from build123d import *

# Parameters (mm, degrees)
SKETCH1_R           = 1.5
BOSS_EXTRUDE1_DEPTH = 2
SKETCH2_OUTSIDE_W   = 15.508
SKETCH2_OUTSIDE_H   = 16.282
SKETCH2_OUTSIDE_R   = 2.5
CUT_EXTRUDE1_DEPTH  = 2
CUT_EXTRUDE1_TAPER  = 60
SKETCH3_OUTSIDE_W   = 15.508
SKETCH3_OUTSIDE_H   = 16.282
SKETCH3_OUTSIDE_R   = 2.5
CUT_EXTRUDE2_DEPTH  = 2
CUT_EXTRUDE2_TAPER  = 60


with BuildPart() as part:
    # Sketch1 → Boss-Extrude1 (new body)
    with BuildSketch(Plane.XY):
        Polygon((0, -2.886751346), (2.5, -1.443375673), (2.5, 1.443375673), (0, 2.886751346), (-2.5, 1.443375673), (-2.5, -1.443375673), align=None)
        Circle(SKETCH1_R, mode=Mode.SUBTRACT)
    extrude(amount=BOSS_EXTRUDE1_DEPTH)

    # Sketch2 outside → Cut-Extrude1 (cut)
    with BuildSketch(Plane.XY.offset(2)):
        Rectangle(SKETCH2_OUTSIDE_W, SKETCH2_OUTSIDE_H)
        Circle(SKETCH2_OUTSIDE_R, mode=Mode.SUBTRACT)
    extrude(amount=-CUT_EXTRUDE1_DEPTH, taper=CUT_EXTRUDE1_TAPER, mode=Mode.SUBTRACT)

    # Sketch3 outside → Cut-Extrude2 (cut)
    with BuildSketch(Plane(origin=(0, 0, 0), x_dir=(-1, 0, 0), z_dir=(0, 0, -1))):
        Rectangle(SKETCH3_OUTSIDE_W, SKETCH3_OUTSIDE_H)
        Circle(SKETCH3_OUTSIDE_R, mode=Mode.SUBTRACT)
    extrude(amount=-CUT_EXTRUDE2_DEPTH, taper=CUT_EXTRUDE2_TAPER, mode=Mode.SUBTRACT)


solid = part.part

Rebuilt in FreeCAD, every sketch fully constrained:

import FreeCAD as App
import Part
import Sketcher

V = App.Vector
Q = App.Units.Quantity

doc = App.newDocument("Part")
params = doc.addObject("Spreadsheet::Sheet", "Params")
for row, (alias, value) in enumerate([
    ("sketch1_diameter", "3 mm"),
    ("pad1_length", "2 mm"),
    ("sketch2_diameter", "5 mm"),
    ("pocket1_length", "2 mm"),
    ("pocket1_taper", "60 deg"),
    ("sketch3_diameter", "5 mm"),
    ("pocket2_length", "2 mm"),
    ("pocket2_taper", "60 deg"),
], start=1):
    params.set(f"A{row}", alias)
    params.set(f"B{row}", "=" + value)
    params.setAlias(f"B{row}", alias)

body = doc.addObject("PartDesign::Body", "Body")

# Sketch on XY plane
sketch1 = body.newObject("Sketcher::SketchObject", "Sketch")
sketch1.AttachmentSupport = (doc.getObject("XY_Plane"), [""])
sketch1.MapMode = "FlatFace"
sketch1.addGeometry(Part.LineSegment(V(0, -2.886751, 0), V(2.5, -1.443376, 0)), False)
sketch1.addGeometry(Part.LineSegment(V(2.5, -1.443376, 0), V(2.5, 1.443376, 0)), False)
sketch1.addGeometry(Part.LineSegment(V(2.5, 1.443376, 0), V(0, 2.886751, 0)), False)
sketch1.addGeometry(Part.LineSegment(V(0, 2.886751, 0), V(-2.5, 1.443376, 0)), False)
sketch1.addGeometry(Part.LineSegment(V(-2.5, 1.443376, 0), V(-2.5, -1.443376, 0)), False)
sketch1.addGeometry(Part.LineSegment(V(-2.5, -1.443376, 0), V(0, -2.886751, 0)), False)
sketch1.addGeometry(Part.Circle(V(0, 0, 0), V(0, 0, 1), 1.5), False)
sketch1.addConstraint(Sketcher.Constraint("Coincident", 0, 2, 1, 1))
sketch1.addConstraint(Sketcher.Constraint("Coincident", 1, 2, 2, 1))
sketch1.addConstraint(Sketcher.Constraint("Coincident", 2, 2, 3, 1))
sketch1.addConstraint(Sketcher.Constraint("Coincident", 3, 2, 4, 1))
sketch1.addConstraint(Sketcher.Constraint("Coincident", 4, 2, 5, 1))
sketch1.addConstraint(Sketcher.Constraint("Coincident", 5, 2, 0, 1))
sketch1.addConstraint(Sketcher.Constraint("Vertical", 1))
sketch1.addConstraint(Sketcher.Constraint("Vertical", 4))
sketch1.addConstraint(Sketcher.Constraint("Coincident", 6, 3, -1, 1))
sketch1.addConstraint(Sketcher.Constraint("Symmetric", 0, 2, 3, 2, -1, 1))
sketch1.addConstraint(Sketcher.Constraint("Symmetric", 2, 2, 5, 2, -1, 1))
sketch1.addConstraint(Sketcher.Constraint("PointOnObject", 2, 2, -2))
sketch1.addConstraint(Sketcher.Constraint("Parallel", 2, 5))
sketch1.addConstraint(Sketcher.Constraint("Horizontal", 1, 2, 3, 2))
sketch1.addConstraint(Sketcher.Constraint("Diameter", 6, 3.0))
sketch1.addConstraint(Sketcher.Constraint("Angle", 0, Q("30 deg")))
sketch1.addConstraint(Sketcher.Constraint("DistanceX", 3, 2, 1, 2, 5.0))
sketch1.addConstraint(Sketcher.Constraint("DistanceY", 1, 1, 1, 2, 2.886751))
sketch1.setExpression("Constraints[14]", "Params.sketch1_diameter")
pad1 = body.newObject("PartDesign::Pad", "Pad")
pad1.Profile = sketch1
pad1.setExpression("Length", "Params.pad1_length")

# Sketch on XY plane
sketch2 = body.newObject("Sketcher::SketchObject", "Sketch001")
sketch2.AttachmentSupport = (doc.getObject("XY_Plane"), [""])
sketch2.MapMode = "FlatFace"
sketch2.AttachmentOffset = App.Placement(V(0, 0, 2), App.Rotation())
sketch2.addGeometry(Part.LineSegment(V(-7.754, 8.141, 0), V(-7.754, -8.141, 0)), False)
sketch2.addGeometry(Part.LineSegment(V(-7.754, -8.141, 0), V(7.754, -8.141, 0)), False)
sketch2.addGeometry(Part.LineSegment(V(7.754, -8.141, 0), V(7.754, 8.141, 0)), False)
sketch2.addGeometry(Part.LineSegment(V(7.754, 8.141, 0), V(-7.754, 8.141, 0)), False)
sketch2.addGeometry(Part.Circle(V(0, 0, 0), V(0, 0, 1), 2.5), False)
sketch2.addConstraint(Sketcher.Constraint("Coincident", 0, 2, 1, 1))
sketch2.addConstraint(Sketcher.Constraint("Coincident", 1, 2, 2, 1))
sketch2.addConstraint(Sketcher.Constraint("Coincident", 2, 2, 3, 1))
sketch2.addConstraint(Sketcher.Constraint("Coincident", 3, 2, 0, 1))
sketch2.addConstraint(Sketcher.Constraint("Vertical", 0))
sketch2.addConstraint(Sketcher.Constraint("Horizontal", 1))
sketch2.addConstraint(Sketcher.Constraint("Vertical", 2))
sketch2.addConstraint(Sketcher.Constraint("Horizontal", 3))
sketch2.addConstraint(Sketcher.Constraint("Coincident", 4, 3, -1, 1))
sketch2.addConstraint(Sketcher.Constraint("Symmetric", 0, 2, 2, 2, -1, 1))
sketch2.addConstraint(Sketcher.Constraint("Diameter", 4, 5.0))
sketch2.addConstraint(Sketcher.Constraint("DistanceX", 1, 1, 1, 2, 15.508))
sketch2.addConstraint(Sketcher.Constraint("DistanceY", 0, 2, 0, 1, 16.282))
sketch2.setExpression("Constraints[10]", "Params.sketch2_diameter")
pocket1 = body.newObject("PartDesign::Pocket", "Pocket")
pocket1.Profile = sketch2
pocket1.setExpression("Length", "Params.pocket1_length")
pocket1.setExpression("TaperAngle", "Params.pocket1_taper")

# Sketch on XY plane
sketch3 = body.newObject("Sketcher::SketchObject", "Sketch002")
sketch3.AttachmentSupport = (doc.getObject("XY_Plane"), [""])
sketch3.MapMode = "FlatFace"
sketch3.addGeometry(Part.LineSegment(V(7.754, 8.141, 0), V(7.754, -8.141, 0)), False)
sketch3.addGeometry(Part.LineSegment(V(7.754, -8.141, 0), V(-7.754, -8.141, 0)), False)
sketch3.addGeometry(Part.LineSegment(V(-7.754, -8.141, 0), V(-7.754, 8.141, 0)), False)
sketch3.addGeometry(Part.LineSegment(V(-7.754, 8.141, 0), V(7.754, 8.141, 0)), False)
sketch3.addGeometry(Part.Circle(V(0, 0, 0), V(0, 0, 1), 2.5), False)
sketch3.addConstraint(Sketcher.Constraint("Coincident", 0, 2, 1, 1))
sketch3.addConstraint(Sketcher.Constraint("Coincident", 1, 2, 2, 1))
sketch3.addConstraint(Sketcher.Constraint("Coincident", 2, 2, 3, 1))
sketch3.addConstraint(Sketcher.Constraint("Coincident", 3, 2, 0, 1))
sketch3.addConstraint(Sketcher.Constraint("Vertical", 0))
sketch3.addConstraint(Sketcher.Constraint("Horizontal", 1))
sketch3.addConstraint(Sketcher.Constraint("Vertical", 2))
sketch3.addConstraint(Sketcher.Constraint("Horizontal", 3))
sketch3.addConstraint(Sketcher.Constraint("Coincident", 4, 3, -1, 1))
sketch3.addConstraint(Sketcher.Constraint("Symmetric", 0, 2, 2, 2, -1, 1))
sketch3.addConstraint(Sketcher.Constraint("Diameter", 4, 5.0))
sketch3.addConstraint(Sketcher.Constraint("DistanceX", 1, 2, 1, 1, 15.508))
sketch3.addConstraint(Sketcher.Constraint("DistanceY", 0, 2, 0, 1, 16.282))
sketch3.setExpression("Constraints[10]", "Params.sketch3_diameter")
pocket2 = body.newObject("PartDesign::Pocket", "Pocket001")
pocket2.Profile = sketch3
pocket2.setExpression("Length", "Params.pocket2_length")
pocket2.Reversed = True
pocket2.setExpression("TaperAngle", "Params.pocket2_taper")

doc.recompute()
